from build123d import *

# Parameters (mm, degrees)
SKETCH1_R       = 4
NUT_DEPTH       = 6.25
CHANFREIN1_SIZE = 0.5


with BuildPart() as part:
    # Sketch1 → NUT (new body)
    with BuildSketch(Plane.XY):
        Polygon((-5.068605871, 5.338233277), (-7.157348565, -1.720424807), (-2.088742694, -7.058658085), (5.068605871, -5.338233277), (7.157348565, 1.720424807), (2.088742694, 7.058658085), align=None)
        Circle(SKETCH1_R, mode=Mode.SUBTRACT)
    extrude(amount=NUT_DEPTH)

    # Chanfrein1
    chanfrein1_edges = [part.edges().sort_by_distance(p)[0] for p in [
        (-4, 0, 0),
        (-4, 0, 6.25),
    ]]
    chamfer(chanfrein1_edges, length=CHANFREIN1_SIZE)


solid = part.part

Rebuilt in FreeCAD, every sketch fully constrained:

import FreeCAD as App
import Part
import Sketcher
from FreeCAD import Vector


def edges_at(feature, points):
    """Names of the edges that pass closest to the given points."""
    edges = feature.Shape.Edges
    near = lambda p: min(range(len(edges)), key=lambda i: edges[i].distToShape(Part.Vertex(*p))[0])
    return sorted({f"Edge{near(p) + 1}" for p in points})


def add_polygon(sketch, points):
    """Adds a closed chain of lines whose ends are joined by coincident constraints."""
    first, n = sketch.GeometryCount, len(points)
    for a, b in zip(points, points[1:] + points[:1]):
        sketch.addGeometry(Part.LineSegment(App.Vector(*a, 0), App.Vector(*b, 0)), False)
    for i in range(n):
        sketch.addConstraint(Sketcher.Constraint("Coincident", first + i, 2, first + (i + 1) % n, 1))

doc = App.newDocument("Part")
params = doc.addObject("Spreadsheet::Sheet", "Params")
for row, (alias, value) in enumerate([
    ("sketch1_diameter", "8 mm"),
    ("pad1_length", "6.25 mm"),
    ("chamfer_size", "0.5 mm"),
], start=1):
    params.set(f"A{row}", alias)
    params.set(f"B{row}", "=" + value)
    params.setAlias(f"B{row}", alias)

body = doc.addObject("PartDesign::Body", "Body")

# Sketch on XY plane
sketch1 = doc.addObject("Sketcher::SketchObject", "Sketch")
body.addObject(sketch1)
sketch1.AttachmentSupport = (doc.XY_Plane, [""])
sketch1.MapMode = "FlatFace"
add_polygon(sketch1, [(-5.1, 5.3), (-7.2, -1.7), (-2.1, -7.1), (5.1, -5.3), (7.2, 1.7), (2.1, 7.1)])  # lines 0-5
sketch1.addGeometry(Part.Circle(Vector(0, 0, 0), Vector(0, 0, 1), 4), False)  # 6
sketch1.addConstraint(Sketcher.Constraint("Coincident", 6, 3, -1, 1))
sketch1.addConstraint(Sketcher.Constraint("Symmetric", 0, 2, 3, 2, -1, 1))
sketch1.addConstraint(Sketcher.Constraint("Symmetric", 1, 2, 4, 2, -1, 1))
sketch1.addConstraint(Sketcher.Constraint("Symmetric", 2, 2, 5, 2, -1, 1))
sketch1.addConstraint(Sketcher.Constraint("Equal", 0, 1))
sketch1.addConstraint(Sketcher.Constraint("Equal", 1, 2))
sketch1.addConstraint(Sketcher.Constraint("Diameter", 6, 8.0))
sketch1.addConstraint(Sketcher.Constraint("DistanceX", 0, 2, -1, 1, 7.157349))
sketch1.addConstraint(Sketcher.Constraint("DistanceY", 1, 2, -1, 1, 7.058658))
sketch1.addConstraint(Sketcher.Constraint("DistanceX", 1, 2, 2, 2, 7.157349))
sketch1.addConstraint(Sketcher.Constraint("DistanceY", 2, 2, 0, 2, 3.617808))
sketch1.setExpression("Constraints[12]", "Params.sketch1_diameter")
pad1 = doc.addObject("PartDesign::Pad", "Pad")
body.addObject(pad1)
pad1.Profile = sketch1
pad1.setExpression("Length", "Params.pad1_length")
doc.recompute()

chamfer = doc.addObject("PartDesign::Chamfer", "Chamfer")
body.addObject(chamfer)
chamfer.Base = (pad1, edges_at(pad1, [(-4, 0, 0), (-4, 0, 6.25)]))
chamfer.setExpression("Size", "Params.chamfer_size")

doc.recompute()
